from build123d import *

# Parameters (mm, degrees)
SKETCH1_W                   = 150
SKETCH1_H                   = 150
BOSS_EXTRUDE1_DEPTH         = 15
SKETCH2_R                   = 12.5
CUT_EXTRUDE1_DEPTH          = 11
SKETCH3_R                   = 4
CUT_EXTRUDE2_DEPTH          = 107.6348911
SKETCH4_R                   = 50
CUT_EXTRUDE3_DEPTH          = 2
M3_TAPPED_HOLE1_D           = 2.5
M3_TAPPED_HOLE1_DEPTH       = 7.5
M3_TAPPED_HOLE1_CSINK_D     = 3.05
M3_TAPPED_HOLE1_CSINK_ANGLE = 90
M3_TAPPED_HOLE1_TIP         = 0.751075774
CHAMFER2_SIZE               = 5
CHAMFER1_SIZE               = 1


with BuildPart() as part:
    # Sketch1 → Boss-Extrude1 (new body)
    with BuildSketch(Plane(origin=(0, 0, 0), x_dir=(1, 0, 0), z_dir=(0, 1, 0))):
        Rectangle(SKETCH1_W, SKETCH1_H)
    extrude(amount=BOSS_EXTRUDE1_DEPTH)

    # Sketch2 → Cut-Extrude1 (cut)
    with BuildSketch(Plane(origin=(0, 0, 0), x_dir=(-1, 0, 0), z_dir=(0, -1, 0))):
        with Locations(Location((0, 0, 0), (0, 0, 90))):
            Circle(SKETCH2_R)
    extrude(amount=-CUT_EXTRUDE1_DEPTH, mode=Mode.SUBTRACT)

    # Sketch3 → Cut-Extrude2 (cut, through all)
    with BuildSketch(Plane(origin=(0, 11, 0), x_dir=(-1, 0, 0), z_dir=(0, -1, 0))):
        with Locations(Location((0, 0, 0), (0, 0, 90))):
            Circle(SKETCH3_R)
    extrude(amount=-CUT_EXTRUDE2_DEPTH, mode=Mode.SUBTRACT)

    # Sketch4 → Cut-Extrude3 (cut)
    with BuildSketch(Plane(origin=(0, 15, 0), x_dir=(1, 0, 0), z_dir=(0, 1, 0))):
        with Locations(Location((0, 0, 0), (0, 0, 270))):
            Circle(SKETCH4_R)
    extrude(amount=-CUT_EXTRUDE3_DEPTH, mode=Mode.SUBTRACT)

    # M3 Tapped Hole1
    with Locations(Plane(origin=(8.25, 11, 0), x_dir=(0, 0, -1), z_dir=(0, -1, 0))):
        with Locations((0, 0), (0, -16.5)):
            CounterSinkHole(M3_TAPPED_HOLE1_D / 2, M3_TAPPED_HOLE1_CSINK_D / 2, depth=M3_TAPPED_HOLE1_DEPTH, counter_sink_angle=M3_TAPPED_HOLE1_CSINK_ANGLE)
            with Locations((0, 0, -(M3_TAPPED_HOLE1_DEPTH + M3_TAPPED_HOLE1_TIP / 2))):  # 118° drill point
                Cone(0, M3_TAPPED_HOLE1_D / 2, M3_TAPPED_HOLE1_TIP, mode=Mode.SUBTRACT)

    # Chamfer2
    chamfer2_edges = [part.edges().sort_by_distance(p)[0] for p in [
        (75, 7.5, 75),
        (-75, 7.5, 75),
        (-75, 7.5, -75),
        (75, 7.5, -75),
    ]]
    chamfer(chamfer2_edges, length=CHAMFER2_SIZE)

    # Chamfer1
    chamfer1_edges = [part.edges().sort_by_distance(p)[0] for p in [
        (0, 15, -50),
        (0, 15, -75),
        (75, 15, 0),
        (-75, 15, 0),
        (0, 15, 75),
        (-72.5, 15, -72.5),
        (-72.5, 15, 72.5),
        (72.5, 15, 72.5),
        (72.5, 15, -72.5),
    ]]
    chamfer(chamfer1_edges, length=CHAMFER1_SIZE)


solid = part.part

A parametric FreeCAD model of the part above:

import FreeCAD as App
import Part
import Sketcher
from FreeCAD import Vector


def edges_at(feature, points):
    """Names of the edges that pass closest to the given points."""
    edges = feature.Shape.Edges
    near = lambda p: min(range(len(edges)), key=lambda i: edges[i].distToShape(Part.Vertex(*p))[0])
    return sorted({f"Edge{near(p) + 1}" for p in points})

doc = App.newDocument("Part")
body = doc.addObject("PartDesign::Body", "Body")

sketch1 = body.newObject("Sketcher::SketchObject", "Sketch")
sketch1.AttachmentSupport = (doc.getObject("XZ_Plane"), [""])
sketch1.MapMode = "FlatFace"
sketch1.addGeometry(Part.LineSegment(Vector(-75, -75, 0), Vector(-75, 75, 0)), False)
sketch1.addGeometry(Part.LineSegment(Vector(-75, 75, 0), Vector(75, 75, 0)), False)
sketch1.addGeometry(Part.LineSegment(Vector(75, 75, 0), Vector(75, -75, 0)), False)
sketch1.addGeometry(Part.LineSegment(Vector(75, -75, 0), Vector(-75, -75, 0)), False)
sketch1.addConstraint(Sketcher.Constraint("Coincident", 0, 2, 1, 1))
sketch1.addConstraint(Sketcher.Constraint("Coincident", 1, 2, 2, 1))
sketch1.addConstraint(Sketcher.Constraint("Coincident", 2, 2, 3, 1))
sketch1.addConstraint(Sketcher.Constraint("Coincident", 3, 2, 0, 1))
sketch1.addConstraint(Sketcher.Constraint("Vertical", 0))
sketch1.addConstraint(Sketcher.Constraint("Horizontal", 1))
sketch1.addConstraint(Sketcher.Constraint("Vertical", 2))
sketch1.addConstraint(Sketcher.Constraint("Horizontal", 3))
sketch1.addConstraint(Sketcher.Constraint("Symmetric", 0, 2, 2, 2, -1, 1))
sketch1.addConstraint(Sketcher.Constraint("Equal", 3, 0))
sketch1.addConstraint(Sketcher.Constraint("DistanceX", 1, 1, 1, 2, 150.0))
pad1 = body.newObject("PartDesign::Pad", "Pad")
pad1.Profile = sketch1
pad1.Length = 15
pad1.Reversed = True

sketch2 = body.newObject("Sketcher::SketchObject", "Sketch001")
sketch2.AttachmentSupport = (doc.getObject("XZ_Plane"), [""])
sketch2.MapMode = "FlatFace"
sketch2.addGeometry(Part.Circle(Vector(0, 0, 0), Vector(0, 0, 1), 12), False)
sketch2.addConstraint(Sketcher.Constraint("Coincident", 0, 3, -1, 1))
sketch2.addConstraint(Sketcher.Constraint("Diameter", 0, 25.0))
pocket1 = body.newObject("PartDesign::Pocket", "Pocket")
pocket1.Profile = sketch2
pocket1.Length = 11

sketch3 = body.newObject("Sketcher::SketchObject", "Sketch002")
sketch3.AttachmentSupport = (doc.getObject("XZ_Plane"), [""])
sketch3.MapMode = "FlatFace"
sketch3.AttachmentOffset = App.Placement(Vector(0, 0, -11), App.Rotation())
sketch3.addGeometry(Part.Circle(Vector(0, 0, 0), Vector(0, 0, 1), 4), False)
sketch3.addConstraint(Sketcher.Constraint("Coincident", 0, 3, -1, 1))
sketch3.addConstraint(Sketcher.Constraint("Diameter", 0, 8.0))
pocket2 = body.newObject("PartDesign::Pocket", "Pocket001")
pocket2.Profile = sketch3
pocket2.Type = "ThroughAll"

sketch4 = body.newObject("Sketcher::SketchObject", "Sketch003")
sketch4.AttachmentSupport = (doc.getObject("XZ_Plane"), [""])
sketch4.MapMode = "FlatFace"
sketch4.AttachmentOffset = App.Placement(Vector(0, 0, -15), App.Rotation())
sketch4.addGeometry(Part.Circle(Vector(0, 0, 0), Vector(0, 0, 1), 50), False)
sketch4.addConstraint(Sketcher.Constraint("Coincident", 0, 3, -1, 1))
sketch4.addConstraint(Sketcher.Constraint("Diameter", 0, 100.0))
pocket3 = body.newObject("PartDesign::Pocket", "Pocket002")
pocket3.Profile = sketch4
pocket3.Length = 2
pocket3.Reversed = True

sketch5 = body.newObject("Sketcher::SketchObject", "Sketch004")
sketch5.AttachmentSupport = (doc.getObject("XZ_Plane"), [""])
sketch5.MapMode = "FlatFace"
sketch5.AttachmentOffset = App.Placement(Vector(0, 0, -11), App.Rotation())
sketch5.addGeometry(Part.Circle(Vector(8.2, 0, 0), Vector(0, 0, 1), 1.2), False)
sketch5.addGeometry(Part.Circle(Vector(-8.2, 0, 0), Vector(0, 0, 1), 1.2), False)
sketch5.addConstraint(Sketcher.Constraint("Equal", 0, 1))
sketch5.addConstraint(Sketcher.Constraint("Symmetric", 0, 3, 1, 3, -1, 1))
sketch5.addConstraint(Sketcher.Constraint("PointOnObject", 0, 3, -1))
sketch5.addConstraint(Sketcher.Constraint("Diameter", 0, 2.5))
sketch5.addConstraint(Sketcher.Constraint("DistanceX", 1, 3, 0, 3, 16.5))
doc.recompute()
hole = body.newObject("PartDesign::Hole", "Hole")
hole.Profile = sketch5
hole.ThreadType = "None"
hole.Diameter = 2.5
hole.DepthType = "Dimension"
hole.Depth = 7.5
hole.DrillPoint = "Angled"
hole.DrillPointAngle = 118
hole.HoleCutType = "Countersink"
hole.HoleCutDiameter = 3.05
hole.HoleCutCountersinkAngle = 90
doc.recompute()

chamfer = body.newObject("PartDesign::Chamfer", "Chamfer")
chamfer.Base = (hole, edges_at(hole, [
    (75, 7.5, 75),
    (-75, 7.5, 75),
    (-75, 7.5, -75),
    (75, 7.5, -75),
]))
chamfer.Size = 5
doc.recompute()

chamfer2 = body.newObject("PartDesign::Chamfer", "Chamfer001")
chamfer2.Base = (chamfer, edges_at(chamfer, [
    (0, 15, -50),
    (0, 15, -75),
    (75, 15, 0),
    (-75, 15, 0),
    (0, 15, 75),
    (-72.5, 15, -72.5),
    (-72.5, 15, 72.5),
    (72.5, 15, 72.5),
    (72.5, 15, -72.5),
]))
chamfer2.Size = 1

doc.recompute()
